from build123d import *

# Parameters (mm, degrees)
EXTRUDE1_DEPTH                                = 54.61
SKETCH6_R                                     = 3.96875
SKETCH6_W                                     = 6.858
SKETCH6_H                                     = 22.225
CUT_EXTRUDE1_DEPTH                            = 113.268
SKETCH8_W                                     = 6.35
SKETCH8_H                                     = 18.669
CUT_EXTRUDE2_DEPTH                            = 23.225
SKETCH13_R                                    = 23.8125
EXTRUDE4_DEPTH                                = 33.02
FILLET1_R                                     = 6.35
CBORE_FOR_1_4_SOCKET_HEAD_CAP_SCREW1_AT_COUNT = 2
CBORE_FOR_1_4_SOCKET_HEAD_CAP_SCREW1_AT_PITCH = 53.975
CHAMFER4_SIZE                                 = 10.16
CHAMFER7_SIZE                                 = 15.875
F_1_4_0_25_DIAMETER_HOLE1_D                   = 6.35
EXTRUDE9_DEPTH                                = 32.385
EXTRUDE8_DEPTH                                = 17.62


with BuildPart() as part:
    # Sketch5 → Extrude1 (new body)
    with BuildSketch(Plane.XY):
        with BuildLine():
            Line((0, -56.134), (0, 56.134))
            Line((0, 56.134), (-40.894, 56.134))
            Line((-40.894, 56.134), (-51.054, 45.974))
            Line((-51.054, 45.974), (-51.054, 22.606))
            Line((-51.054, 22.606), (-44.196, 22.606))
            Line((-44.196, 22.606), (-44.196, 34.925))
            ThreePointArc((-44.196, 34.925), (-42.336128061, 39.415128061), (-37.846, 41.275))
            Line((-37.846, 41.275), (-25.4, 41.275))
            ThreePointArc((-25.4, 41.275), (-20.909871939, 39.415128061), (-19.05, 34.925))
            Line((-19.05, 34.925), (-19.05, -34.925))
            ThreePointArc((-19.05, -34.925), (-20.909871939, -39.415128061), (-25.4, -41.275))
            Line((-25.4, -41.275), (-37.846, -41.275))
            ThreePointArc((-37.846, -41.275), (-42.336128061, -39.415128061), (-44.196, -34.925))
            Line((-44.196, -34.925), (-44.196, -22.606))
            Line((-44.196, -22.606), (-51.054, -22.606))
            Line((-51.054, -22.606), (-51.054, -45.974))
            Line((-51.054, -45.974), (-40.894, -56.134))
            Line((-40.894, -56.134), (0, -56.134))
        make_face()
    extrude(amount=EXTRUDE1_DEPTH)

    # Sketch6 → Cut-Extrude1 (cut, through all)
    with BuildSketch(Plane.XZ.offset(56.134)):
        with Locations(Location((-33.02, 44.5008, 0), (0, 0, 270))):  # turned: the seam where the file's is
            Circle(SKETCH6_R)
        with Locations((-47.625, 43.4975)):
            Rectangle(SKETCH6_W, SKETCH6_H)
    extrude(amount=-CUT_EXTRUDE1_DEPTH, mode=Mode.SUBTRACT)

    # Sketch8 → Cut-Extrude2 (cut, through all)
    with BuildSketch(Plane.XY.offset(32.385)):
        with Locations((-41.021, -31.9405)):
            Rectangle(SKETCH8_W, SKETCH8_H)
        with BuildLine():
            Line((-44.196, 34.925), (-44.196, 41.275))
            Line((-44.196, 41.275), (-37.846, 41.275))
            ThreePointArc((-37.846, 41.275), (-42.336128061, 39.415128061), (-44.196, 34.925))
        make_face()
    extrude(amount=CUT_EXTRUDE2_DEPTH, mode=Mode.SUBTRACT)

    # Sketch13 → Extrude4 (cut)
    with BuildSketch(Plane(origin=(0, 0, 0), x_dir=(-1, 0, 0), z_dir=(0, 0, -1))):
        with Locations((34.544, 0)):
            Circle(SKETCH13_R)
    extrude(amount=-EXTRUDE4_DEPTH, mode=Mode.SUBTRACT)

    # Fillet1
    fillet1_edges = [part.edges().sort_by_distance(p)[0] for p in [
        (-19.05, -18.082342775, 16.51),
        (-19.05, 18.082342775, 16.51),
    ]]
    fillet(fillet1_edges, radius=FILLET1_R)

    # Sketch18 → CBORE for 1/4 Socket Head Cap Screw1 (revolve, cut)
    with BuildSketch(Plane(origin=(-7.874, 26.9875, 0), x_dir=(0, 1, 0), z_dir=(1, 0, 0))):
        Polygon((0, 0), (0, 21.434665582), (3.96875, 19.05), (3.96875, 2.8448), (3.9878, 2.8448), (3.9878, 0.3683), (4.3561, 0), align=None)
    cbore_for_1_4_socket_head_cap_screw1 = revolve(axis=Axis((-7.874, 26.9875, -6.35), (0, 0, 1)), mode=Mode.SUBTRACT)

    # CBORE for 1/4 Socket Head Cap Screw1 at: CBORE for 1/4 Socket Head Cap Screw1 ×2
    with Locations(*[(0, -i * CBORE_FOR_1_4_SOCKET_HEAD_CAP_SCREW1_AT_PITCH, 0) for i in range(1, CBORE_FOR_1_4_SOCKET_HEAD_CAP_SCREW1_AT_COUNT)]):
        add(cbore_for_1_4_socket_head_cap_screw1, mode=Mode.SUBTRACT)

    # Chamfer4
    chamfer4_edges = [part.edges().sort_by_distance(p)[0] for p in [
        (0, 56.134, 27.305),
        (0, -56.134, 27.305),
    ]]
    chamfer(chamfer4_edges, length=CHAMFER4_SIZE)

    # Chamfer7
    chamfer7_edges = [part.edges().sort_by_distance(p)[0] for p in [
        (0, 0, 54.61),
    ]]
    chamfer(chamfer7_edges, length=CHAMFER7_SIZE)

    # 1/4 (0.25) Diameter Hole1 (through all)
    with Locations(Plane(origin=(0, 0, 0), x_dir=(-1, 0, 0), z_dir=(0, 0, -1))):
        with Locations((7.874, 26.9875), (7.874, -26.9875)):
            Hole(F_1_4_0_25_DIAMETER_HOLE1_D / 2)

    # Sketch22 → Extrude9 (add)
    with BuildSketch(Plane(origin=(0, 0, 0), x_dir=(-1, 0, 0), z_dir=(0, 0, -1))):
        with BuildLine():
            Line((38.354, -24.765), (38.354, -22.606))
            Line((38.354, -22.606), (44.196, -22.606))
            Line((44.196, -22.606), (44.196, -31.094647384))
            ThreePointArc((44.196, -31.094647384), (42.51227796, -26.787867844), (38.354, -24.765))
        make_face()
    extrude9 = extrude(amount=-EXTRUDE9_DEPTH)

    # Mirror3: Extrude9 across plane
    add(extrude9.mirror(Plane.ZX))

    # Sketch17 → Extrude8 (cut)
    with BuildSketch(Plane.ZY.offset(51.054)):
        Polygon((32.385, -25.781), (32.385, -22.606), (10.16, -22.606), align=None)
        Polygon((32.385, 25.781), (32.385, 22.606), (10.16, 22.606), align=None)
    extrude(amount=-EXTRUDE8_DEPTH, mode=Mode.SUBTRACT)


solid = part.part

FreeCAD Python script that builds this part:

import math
import FreeCAD as App
import Part
import Sketcher

V = App.Vector
Q = App.Units.Quantity


def edges_at(feature, points):
    """Names of the edges that pass closest to the given points."""
    edges = feature.Shape.Edges
    near = lambda p: min(range(len(edges)), key=lambda i: edges[i].distToShape(Part.Vertex(*p))[0])
    return sorted({f"Edge{near(p) + 1}" for p in points})

doc = App.newDocument("Part")
params = doc.addObject("Spreadsheet::Sheet", "Params")
for row, (alias, value) in enumerate([
    ("sketch1_radius", "0.25 in"),
    ("sketch1_width", "1.61 in"),
    ("sketch1_width2", "0.27 in"),
    ("sketch1_width3", "0.49 in"),
    ("sketch1_height", "4.42 in"),
    ("pad1_length", "2.15 in"),
    ("sketch2_diameter", "0.3125 in"),
    ("sketch2_width", "0.27 in"),
    ("sketch2_height", "0.875 in"),
    ("sketch3_radius", "0.25 in"),
    ("sketch3_height", "0.735 in"),
    ("sketch4_diameter", "1.875 in"),
    ("pocket3_length", "1.3 in"),
    ("fillet_radius", "0.25 in"),
    ("sketch5_height", "0.638 in"),
    ("groove_angle", "360 deg"),
    ("linearpattern_pitch", "2.125 in"),
    ("chamfer_size", "0.4 in"),
    ("chamfer2_size", "0.625 in"),
    ("sketch6_diameter", "0.25 in"),
    ("hole_diameter", "0.25 in"),
    ("sketch7_radius", "0.25 in"),
    ("sketch7_width", "0.23 in"),
    ("sketch7_height", "0.085 in"),
    ("pad2_length", "1.275 in"),
    ("sketch8_width", "0.125 in"),
    ("sketch8_height", "0.875 in"),
    ("pocket4_length", "17.62 mm"),
], start=1):
    params.set(f"A{row}", alias)
    params.set(f"B{row}", "=" + value)
    params.setAlias(f"B{row}", alias)

body = doc.addObject("PartDesign::Body", "Body")

# Sketch on XY plane
sketch1 = body.newObject("Sketcher::SketchObject", "Sketch")
sketch1.AttachmentSupport = (doc.getObject("XY_Plane"), [""])
sketch1.MapMode = "FlatFace"
sketch1.addGeometry([
    Part.LineSegment(V(0, -56, 0), V(0, 56, 0)),  # 0
    Part.LineSegment(V(0, 56, 0), V(-41, 56, 0)),  # 1
    Part.LineSegment(V(-41, 56, 0), V(-51, 46, 0)),  # 2
    Part.LineSegment(V(-51, 46, 0), V(-51, 23, 0)),  # 3
    Part.LineSegment(V(-51, 23, 0), V(-44, 23, 0)),  # 4
    Part.LineSegment(V(-44, 23, 0), V(-44, 35, 0)),  # 5
    Part.ArcOfCircle(Part.Circle(V(-38, 35, 0), V(0, 0, 1), 6), math.radians(90), math.radians(180)),  # 6
    Part.LineSegment(V(-38, 41, 0), V(-25, 41, 0)),  # 7
    Part.ArcOfCircle(Part.Circle(V(-25, 35, 0), V(0, 0, 1), 6), math.radians(0), math.radians(90)),  # 8
    Part.LineSegment(V(-19, 35, 0), V(-19, -35, 0)),  # 9
    Part.ArcOfCircle(Part.Circle(V(-25, -35, 0), V(0, 0, 1), 6), math.radians(-90), math.radians(0)),  # 10
    Part.LineSegment(V(-25, -41, 0), V(-38, -41, 0)),  # 11
    Part.ArcOfCircle(Part.Circle(V(-38, -35, 0), V(0, 0, 1), 6), math.radians(180), math.radians(270)),  # 12
    Part.LineSegment(V(-44, -35, 0), V(-44, -23, 0)),  # 13
    Part.LineSegment(V(-44, -23, 0), V(-51, -23, 0)),  # 14
    Part.LineSegment(V(-51, -23, 0), V(-51, -46, 0)),  # 15
    Part.LineSegment(V(-51, -46, 0), V(-41, -56, 0)),  # 16
    Part.LineSegment(V(-41, -56, 0), V(0, -56, 0)),  # 17
], False)
sketch1.addConstraint([
    Sketcher.Constraint("Coincident", 0, 2, 1, 1),
    Sketcher.Constraint("Coincident", 1, 2, 2, 1),
    Sketcher.Constraint("Coincident", 2, 2, 3, 1),
    Sketcher.Constraint("Coincident", 3, 2, 4, 1),
    Sketcher.Constraint("Coincident", 4, 2, 5, 1),
    Sketcher.Constraint("Tangent", 5, 2, 6, 2),
    Sketcher.Constraint("Tangent", 6, 1, 7, 1),
    Sketcher.Constraint("Tangent", 7, 2, 8, 2),
    Sketcher.Constraint("Tangent", 8, 1, 9, 1),
    Sketcher.Constraint("Tangent", 9, 2, 10, 2),
    Sketcher.Constraint("Tangent", 10, 1, 11, 1),
    Sketcher.Constraint("Tangent", 11, 2, 12, 2),
    Sketcher.Constraint("Tangent", 12, 1, 13, 1),
    Sketcher.Constraint("Coincident", 13, 2, 14, 1),
    Sketcher.Constraint("Coincident", 14, 2, 15, 1),
    Sketcher.Constraint("Coincident", 15, 2, 16, 1),
    Sketcher.Constraint("Coincident", 16, 2, 17, 1),
    Sketcher.Constraint("Coincident", 17, 2, 0, 1),
    Sketcher.Constraint("Vertical", 0),
    Sketcher.Constraint("Horizontal", 1),
    Sketcher.Constraint("Vertical", 3),
    Sketcher.Constraint("Horizontal", 4),
    Sketcher.Constraint("Vertical", 5),
    Sketcher.Constraint("Horizontal", 7),
    Sketcher.Constraint("Vertical", 9),
    Sketcher.Constraint("Horizontal", 11),
    Sketcher.Constraint("Vertical", 13),
    Sketcher.Constraint("Horizontal", 14),
    Sketcher.Constraint("Vertical", 15),
    Sketcher.Constraint("Horizontal", 17),
    Sketcher.Constraint("Equal", 6, 8),
    Sketcher.Constraint("Equal", 8, 10),
    Sketcher.Constraint("Equal", 10, 12),
    Sketcher.Constraint("Symmetric", 0, 2, 17, 2, -1, 1),
    Sketcher.Constraint("Symmetric", 6, 3, 12, 3, -1),
    Sketcher.Constraint("Symmetric", 3, 2, 14, 2, -1),
    Sketcher.Constraint("Perpendicular", 2, 16),
    Sketcher.Constraint("Vertical", 1, 2, 16, 2),
    Sketcher.Constraint("Equal", 3, 15),
    Sketcher.Constraint("Radius", 6, Q("0.25 in")),
    Sketcher.Constraint("DistanceX", 8, 3, -1, 1, Q("1 in")),
    Sketcher.Constraint("DistanceX", 1, 2, 1, 1, Q("1.61 in")),
    Sketcher.Constraint("DistanceX", 4, 1, 4, 2, Q("0.27 in")),
    Sketcher.Constraint("DistanceX", 7, 1, 7, 2, Q("0.49 in")),
    Sketcher.Constraint("DistanceY", 0, 1, 0, 2, Q("4.42 in")),
    Sketcher.Constraint("DistanceY", 3, 2, 3, 1, Q("0.92 in")),
    Sketcher.Constraint("DistanceY", 9, 2, 9, 1, Q("2.75 in")),
])
sketch1.setExpression("Constraints[39]", "Params.sketch1_radius")
sketch1.setExpression("Constraints[41]", "Params.sketch1_width")
sketch1.setExpression("Constraints[42]", "Params.sketch1_width2")
sketch1.setExpression("Constraints[43]", "Params.sketch1_width3")
sketch1.setExpression("Constraints[44]", "Params.sketch1_height")
pad1 = body.newObject("PartDesign::Pad", "Pad")
pad1.Profile = sketch1
pad1.setExpression("Length", "Params.pad1_length")

# Sketch on XZ plane
sketch2 = body.newObject("Sketcher::SketchObject", "Sketch001")
sketch2.AttachmentSupport = (doc.getObject("XZ_Plane"), [""])
sketch2.MapMode = "FlatFace"
sketch2.AttachmentOffset = App.Placement(V(0, 0, 2.21 * 25.4), App.Rotation())
sketch2.addGeometry([
    Part.Circle(V(-33, 44.5, 0), V(0, 0, 1), 4),  # 0
    Part.LineSegment(V(-51.1, 54.6, 0), V(-51.1, 32.4, 0)),  # 1
    Part.LineSegment(V(-51.1, 32.4, 0), V(-44.2, 32.4, 0)),  # 2
    Part.LineSegment(V(-44.2, 32.4, 0), V(-44.2, 54.6, 0)),  # 3
    Part.LineSegment(V(-44.2, 54.6, 0), V(-51.1, 54.6, 0)),  # 4
], False)
sketch2.addConstraint([
    Sketcher.Constraint("Coincident", 1, 2, 2, 1),
    Sketcher.Constraint("Coincident", 2, 2, 3, 1),
    Sketcher.Constraint("Coincident", 3, 2, 4, 1),
    Sketcher.Constraint("Coincident", 4, 2, 1, 1),
    Sketcher.Constraint("Vertical", 1),
    Sketcher.Constraint("Horizontal", 2),
    Sketcher.Constraint("Vertical", 3),
    Sketcher.Constraint("Horizontal", 4),
    Sketcher.Constraint("Diameter", 0, Q("0.3125 in")),
    Sketcher.Constraint("DistanceX", 2, 1, 2, 2, Q("0.27 in")),
    Sketcher.Constraint("DistanceX", 0, 3, -1, 1, Q("1.3 in")),
    Sketcher.Constraint("DistanceY", 1, 2, 1, 1, Q("0.875 in")),
    Sketcher.Constraint("DistanceX", 1, 2, -1, 1, Q("2.01 in")),
    Sketcher.Constraint("DistanceY", -1, 1, 3, 2, Q("2.15 in")),
    Sketcher.Constraint("DistanceY", -1, 1, 0, 3, Q("1.752 in")),
])
sketch2.setExpression("Constraints[8]", "Params.sketch2_diameter")
sketch2.setExpression("Constraints[9]", "Params.sketch2_width")
sketch2.setExpression("Constraints[11]", "Params.sketch2_height")
pocket1 = body.newObject("PartDesign::Pocket", "Pocket")
pocket1.Profile = sketch2
pocket1.Type = "ThroughAll"

# Sketch on XY plane
sketch3 = body.newObject("Sketcher::SketchObject", "Sketch002")
sketch3.AttachmentSupport = (doc.getObject("XY_Plane"), [""])
sketch3.MapMode = "FlatFace"
sketch3.AttachmentOffset = App.Placement(V(0, 0, 1.275 * 25.4), App.Rotation())
sketch3.addGeometry([
    Part.LineSegment(V(-44, -23, 0), V(-44, -41, 0)),  # 0
    Part.LineSegment(V(-44, -41, 0), V(-38, -41, 0)),  # 1
    Part.LineSegment(V(-38, -41, 0), V(-38, -23, 0)),  # 2
    Part.LineSegment(V(-38, -23, 0), V(-44, -23, 0)),  # 3
    Part.LineSegment(V(-44, 41, 0), V(-44, 35, 0)),  # 4
    Part.ArcOfCircle(Part.Circle(V(-38, 35, 0), V(0, 0, 1), 6), math.radians(90), math.radians(180)),  # 5
    Part.LineSegment(V(-38, 41, 0), V(-44, 41, 0)),  # 6
], False)
sketch3.addConstraint([
    Sketcher.Constraint("Coincident", 0, 2, 1, 1),
    Sketcher.Constraint("Coincident", 1, 2, 2, 1),
    Sketcher.Constraint("Coincident", 2, 2, 3, 1),
    Sketcher.Constraint("Coincident", 3, 2, 0, 1),
    Sketcher.Constraint("Tangent", 4, 2, 5, 2),
    Sketcher.Constraint("Tangent", 5, 1, 6, 1),
    Sketcher.Constraint("Coincident", 6, 2, 4, 1),
    Sketcher.Constraint("Vertical", 0),
    Sketcher.Constraint("Horizontal", 1),
    Sketcher.Constraint("Vertical", 2),
    Sketcher.Constraint("Horizontal", 3),
    Sketcher.Constraint("Vertical", 4),
    Sketcher.Constraint("Horizontal", 6),
    Sketcher.Constraint("Symmetric", 1, 2, 5, 1, -1),
    Sketcher.Constraint("Vertical", 3, 2, 4, 2),
    Sketcher.Constraint("Radius", 5, Q("0.25 in")),
    Sketcher.Constraint("DistanceY", 0, 2, 5, 3, Q("3 in")),
    Sketcher.Constraint("DistanceY", 0, 2, 0, 1, Q("0.735 in")),
    Sketcher.Constraint("DistanceX", 5, 3, -1, 1, Q("1.49 in")),
])
sketch3.setExpression("Constraints[15]", "Params.sketch3_radius")
sketch3.setExpression("Constraints[17]", "Params.sketch3_height")
pocket2 = body.newObject("PartDesign::Pocket", "Pocket001")
pocket2.Profile = sketch3
pocket2.Type = "ThroughAll"
pocket2.Reversed = True

# Sketch on XY plane
sketch4 = body.newObject("Sketcher::SketchObject", "Sketch003")
sketch4.AttachmentSupport = (doc.getObject("XY_Plane"), [""])
sketch4.MapMode = "FlatFace"
sketch4.addGeometry(Part.Circle(V(-35, 0, 0), V(0, 0, 1), 24), False)
sketch4.addConstraint([
    Sketcher.Constraint("PointOnObject", 0, 3, -1),
    Sketcher.Constraint("Diameter", 0, Q("1.875 in")),
    Sketcher.Constraint("DistanceX", 0, 3, -1, 1, Q("1.36 in")),
])
sketch4.setExpression("Constraints[1]", "Params.sketch4_diameter")
pocket3 = body.newObject("PartDesign::Pocket", "Pocket002")
pocket3.Profile = sketch4
pocket3.setExpression("Length", "Params.pocket3_length")
pocket3.Reversed = True
doc.recompute()

fillet = body.newObject("PartDesign::Fillet", "Fillet")
fillet.Base = (pocket3, edges_at(pocket3, [(-19.05, -18.082, 16.51), (-19.05, 18.082, 16.51)]))
fillet.setExpression("Radius", "Params.fillet_radius")

# Sketch on YZ plane
sketch5 = body.newObject("Sketcher::SketchObject", "Sketch004")
sketch5.AttachmentSupport = (doc.getObject("YZ_Plane"), [""])
sketch5.MapMode = "FlatFace"
sketch5.AttachmentOffset = App.Placement(V(0, 0, -0.31 * 25.4), App.Rotation())
sketch5.addGeometry([
    Part.LineSegment(V(26.988, 21.435, 0), V(26.988, 0, 0)),  # 0
    Part.LineSegment(V(26.988, 0, 0), V(31.344, 0, 0)),  # 1
    Part.LineSegment(V(31.344, 0, 0), V(30.975, 0.368, 0)),  # 2
    Part.LineSegment(V(30.975, 0.368, 0), V(30.975, 2.845, 0)),  # 3
    Part.LineSegment(V(30.975, 2.845, 0), V(30.956, 2.845, 0)),  # 4
    Part.LineSegment(V(30.956, 2.845, 0), V(30.956, 19.05, 0)),  # 5
    Part.LineSegment(V(30.956, 19.05, 0), V(26.988, 21.435, 0)),  # 6
], False)
sketch5.addGeometry(Part.LineSegment(V(26.988, 0, 0), V(26.988, 21.435, 0)), True)  # axis
sketch5.addConstraint([
    Sketcher.Constraint("Coincident", 0, 2, 1, 1),
    Sketcher.Constraint("Coincident", 1, 2, 2, 1),
    Sketcher.Constraint("Coincident", 2, 2, 3, 1),
    Sketcher.Constraint("Coincident", 3, 2, 4, 1),
    Sketcher.Constraint("Coincident", 4, 2, 5, 1),
    Sketcher.Constraint("Coincident", 5, 2, 6, 1),
    Sketcher.Constraint("Coincident", 6, 2, 0, 1),
    Sketcher.Constraint("Vertical", 0),
    Sketcher.Constraint("Horizontal", 1),
    Sketcher.Constraint("Vertical", 3),
    Sketcher.Constraint("Horizontal", 4),
    Sketcher.Constraint("Vertical", 5),
    Sketcher.Constraint("Vertical", 7),
    Sketcher.Constraint("Coincident", 7, 1, 0, 2),
    Sketcher.Constraint("PointOnObject", 0, 2, -1),
    Sketcher.Constraint("Equal", 0, 7),
    Sketcher.Constraint("Angle", 2, Q("135 deg")),
    Sketcher.Constraint("Angle", 6, Q("149 deg")),
    Sketcher.Constraint("DistanceY", 5, 1, 5, 2, Q("0.638 in")),
    Sketcher.Constraint("DistanceY", -1, 1, 5, 2, Q("0.75 in")),
    Sketcher.Constraint("DistanceX", 1, 1, 1, 2, Q("0.1715 in")),
    Sketcher.Constraint("DistanceY", 3, 1, 3, 2, Q("0.0975 in")),
    Sketcher.Constraint("DistanceX", -1, 1, 0, 2, Q("1.0625 in")),
    Sketcher.Constraint("DistanceX", -1, 1, 4, 2, Q("1.21875 in")),
])
sketch5.setExpression("Constraints[18]", "Params.sketch5_height")
groove = body.newObject("PartDesign::Groove", "Groove")
groove.Profile = sketch5
groove.ReferenceAxis = (sketch5, ["Axis0"])
groove.setExpression("Angle", "Params.groove_angle")
doc.recompute()

linearpattern = body.newObject("PartDesign::LinearPattern", "LinearPattern")
linearpattern.Originals = [groove]
linearpattern.Direction = (doc.getObject("Y_Axis"), [""])
linearpattern.Mode = "offset"
linearpattern.setExpression("Offset", "Params.linearpattern_pitch")
linearpattern.Occurrences = 2
linearpattern.Reversed = True
body.Tip = linearpattern
doc.recompute()

chamfer = body.newObject("PartDesign::Chamfer", "Chamfer")
chamfer.Base = (linearpattern, edges_at(linearpattern, [(0, 56.134, 27.305), (0, -56.134, 27.305)]))
chamfer.setExpression("Size", "Params.chamfer_size")
doc.recompute()

chamfer2 = body.newObject("PartDesign::Chamfer", "Chamfer001")
chamfer2.Base = (chamfer, edges_at(chamfer, [(0, 0, 54.61)]))
chamfer2.setExpression("Size", "Params.chamfer2_size")

# Sketch on XY plane
sketch6 = body.newObject("Sketcher::SketchObject", "Sketch005")
sketch6.AttachmentSupport = (doc.getObject("XY_Plane"), [""])
sketch6.MapMode = "FlatFace"
sketch6.addGeometry([
    Part.Circle(V(-7.9, 27, 0), V(0, 0, 1), 3.2),
    Part.Circle(V(-7.9, -27, 0), V(0, 0, 1), 3.2),
], False)
sketch6.addConstraint([
    Sketcher.Constraint("Equal", 0, 1),
    Sketcher.Constraint("Symmetric", 0, 3, 1, 3, -1),
    Sketcher.Constraint("Diameter", 0, Q("0.25 in")),
    Sketcher.Constraint("DistanceX", 0, 3, -1, 1, Q("0.31 in")),
    Sketcher.Constraint("DistanceY", -1, 1, 0, 3, Q("1.0625 in")),
])
sketch6.setExpression("Constraints[2]", "Params.sketch6_diameter")
doc.recompute()
hole = body.newObject("PartDesign::Hole", "Hole")
hole.Profile = sketch6
hole.ThreadType = "None"
hole.setExpression("Diameter", "Params.hole_diameter")
hole.DepthType = "ThroughAll"
hole.Reversed = True

# Sketch on XY plane
sketch7 = body.newObject("Sketcher::SketchObject", "Sketch006")
sketch7.AttachmentSupport = (doc.getObject("XY_Plane"), [""])
sketch7.MapMode = "FlatFace"
sketch7.addGeometry([
    Part.LineSegment(V(-38.4, -22.6, 0), V(-38.4, -24.8, 0)),
    Part.ArcOfCircle(Part.Circle(V(-37.8, -31.1, 0), V(0, 0, 1), 6.3), math.radians(95), math.radians(180)),
    Part.LineSegment(V(-44.2, -31.1, 0), V(-44.2, -22.6, 0)),
    Part.LineSegment(V(-44.2, -22.6, 0), V(-38.4, -22.6, 0)),
], False)
sketch7.addConstraint([
    Sketcher.Constraint("Coincident", 0, 2, 1, 1),
    Sketcher.Constraint("Tangent", 1, 2, 2, 1),
    Sketcher.Constraint("Coincident", 2, 2, 3, 1),
    Sketcher.Constraint("Coincident", 3, 2, 0, 1),
    Sketcher.Constraint("Vertical", 0),
    Sketcher.Constraint("Vertical", 2),
    Sketcher.Constraint("Horizontal", 3),
    Sketcher.Constraint("Radius", 1, Q("0.25 in")),
    Sketcher.Constraint("DistanceX", 3, 1, 3, 2, Q("0.23 in")),
    Sketcher.Constraint("DistanceY", 0, 2, 0, 1, Q("0.085 in")),
    Sketcher.Constraint("DistanceX", 1, 3, -1, 1, Q("1.49 in")),
    Sketcher.Constraint("DistanceY", 2, 2, -1, 1, Q("0.89 in")),
])
sketch7.setExpression("Constraints[7]", "Params.sketch7_radius")
sketch7.setExpression("Constraints[8]", "Params.sketch7_width")
sketch7.setExpression("Constraints[9]", "Params.sketch7_height")
pad2 = body.newObject("PartDesign::Pad", "Pad001")
pad2.Profile = sketch7
pad2.setExpression("Length", "Params.pad2_length")
doc.recompute()

mirrored = body.newObject("PartDesign::Mirrored", "Mirrored")
mirrored.Originals = [pad2]
mirrored.MirrorPlane = (doc.getObject("XZ_Plane"), [""])
body.Tip = mirrored

# Sketch on YZ plane
sketch8 = body.newObject("Sketcher::SketchObject", "Sketch007")
sketch8.AttachmentSupport = (doc.getObject("YZ_Plane"), [""])
sketch8.MapMode = "FlatFace"
sketch8.AttachmentOffset = App.Placement(V(0, 0, -2.01 * 25.4), App.Rotation())
sketch8.addGeometry([
    Part.LineSegment(V(-25.8, 32.4, 0), V(-22.6, 32.4, 0)),  # 0
    Part.LineSegment(V(-22.6, 32.4, 0), V(-22.6, 10.2, 0)),  # 1
    Part.LineSegment(V(-22.6, 10.2, 0), V(-25.8, 32.4, 0)),  # 2
    Part.LineSegment(V(22.6, 32.4, 0), V(25.8, 32.4, 0)),  # 3
    Part.LineSegment(V(25.8, 32.4, 0), V(22.6, 10.2, 0)),  # 4
    Part.LineSegment(V(22.6, 10.2, 0), V(22.6, 32.4, 0)),  # 5
], False)
sketch8.addConstraint([
    Sketcher.Constraint("Coincident", 0, 2, 1, 1),
    Sketcher.Constraint("Coincident", 1, 2, 2, 1),
    Sketcher.Constraint("Coincident", 2, 2, 0, 1),
    Sketcher.Constraint("Coincident", 3, 2, 4, 1),
    Sketcher.Constraint("Coincident", 4, 2, 5, 1),
    Sketcher.Constraint("Coincident", 5, 2, 3, 1),
    Sketcher.Constraint("Horizontal", 0),
    Sketcher.Constraint("Vertical", 1),
    Sketcher.Constraint("Horizontal", 3),
    Sketcher.Constraint("Vertical", 5),
    Sketcher.Constraint("Symmetric", 2, 2, 3, 2, -2),
    Sketcher.Constraint("Symmetric", 1, 2, 4, 2, -2),
    Sketcher.Constraint("DistanceY", -1, 1, 1, 2, Q("0.4 in")),
    Sketcher.Constraint("DistanceX", 0, 1, 0, 2, Q("0.125 in")),
    Sketcher.Constraint("DistanceY", 1, 2, 1, 1, Q("0.875 in")),
    Sketcher.Constraint("DistanceX", 0, 2, -1, 1, Q("0.89 in")),
])
sketch8.setExpression("Constraints[13]", "Params.sketch8_width")
sketch8.setExpression("Constraints[14]", "Params.sketch8_height")
pocket4 = body.newObject("PartDesign::Pocket", "Pocket003")
pocket4.Profile = sketch8
pocket4.setExpression("Length", "Params.pocket4_length")
pocket4.Reversed = True

doc.recompute()
